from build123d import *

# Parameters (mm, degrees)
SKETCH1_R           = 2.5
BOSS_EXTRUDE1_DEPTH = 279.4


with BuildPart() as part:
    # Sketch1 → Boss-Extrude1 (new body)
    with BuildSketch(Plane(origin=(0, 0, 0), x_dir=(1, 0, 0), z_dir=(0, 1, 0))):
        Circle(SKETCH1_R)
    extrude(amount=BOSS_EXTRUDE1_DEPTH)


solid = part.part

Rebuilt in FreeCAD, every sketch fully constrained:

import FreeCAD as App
import Part
import Sketcher

V = App.Vector

doc = App.newDocument("Part")
body = doc.addObject("PartDesign::Body", "Body")

sketch1 = body.newObject("Sketcher::SketchObject", "Sketch")
sketch1.AttachmentSupport = (doc.getObject("XZ_Plane"), [""])
sketch1.MapMode = "FlatFace"
sketch1.addGeometry(Part.Circle(V(0, 0, 0), V(0, 0, 1), 2.5), False)
sketch1.addConstraint([
    Sketcher.Constraint("Coincident", 0, 3, -1, 1),
    Sketcher.Constraint("Diameter", 0, 5.0),
])
pad1 = body.newObject("PartDesign::Pad", "Pad")
pad1.Profile = sketch1
pad1.Length = 279.4
pad1.Reversed = True

doc.recompute()
